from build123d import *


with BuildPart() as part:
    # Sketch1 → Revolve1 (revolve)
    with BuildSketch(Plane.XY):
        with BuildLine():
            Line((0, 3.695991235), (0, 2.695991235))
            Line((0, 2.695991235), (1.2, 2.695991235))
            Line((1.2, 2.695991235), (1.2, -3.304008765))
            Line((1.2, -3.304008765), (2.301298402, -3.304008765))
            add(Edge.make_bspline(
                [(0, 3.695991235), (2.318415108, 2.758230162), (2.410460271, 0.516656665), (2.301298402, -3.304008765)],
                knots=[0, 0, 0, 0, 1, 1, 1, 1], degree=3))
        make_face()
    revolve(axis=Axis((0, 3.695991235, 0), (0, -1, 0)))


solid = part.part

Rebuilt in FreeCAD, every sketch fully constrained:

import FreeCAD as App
import Part
import Sketcher
Q = App.Units.Quantity

doc = App.newDocument("Part")
params = doc.addObject("Spreadsheet::Sheet", "Params")
for row, (alias, value) in enumerate([
    ("sketch1_height", "1 mm"),
    ("sketch1_width", "1.2 mm"),
    ("revolution_angle", "360 deg"),
], start=1):
    params.set(f"A{row}", alias)
    params.set(f"B{row}", "=" + value)
    params.setAlias(f"B{row}", alias)

body = doc.addObject("PartDesign::Body", "Body")

sketch1 = body.newObject("Sketcher::SketchObject", "Sketch")
sketch1.AttachmentSupport = (doc.getObject("XY_Plane"), [""])
sketch1.MapMode = "FlatFace"
sketch1.addGeometry([
    Part.LineSegment(App.Vector(0, 3.695991, 0), App.Vector(0, 2.695991, 0)),
    Part.LineSegment(App.Vector(0, 2.695991, 0), App.Vector(1.2, 2.695991, 0)),
    Part.LineSegment(App.Vector(1.2, 2.695991, 0), App.Vector(1.2, -3.304009, 0)),
    Part.LineSegment(App.Vector(1.2, -3.304009, 0), App.Vector(2.301298, -3.304009, 0)),
    Part.BSplineCurve([App.Vector(0, 3.695991, 0), App.Vector(2.318415, 2.75823, 0), App.Vector(2.41046, 0.516657, 0), App.Vector(2.301298, -3.304009, 0)], [4, 4], [0, 1], False, 3, [1, 1, 1, 1], False),
], False)
sketch1.addConstraint([
    Sketcher.Constraint("Block", 4),
    Sketcher.Constraint("Coincident", 0, 2, 1, 1),
    Sketcher.Constraint("Coincident", 1, 2, 2, 1),
    Sketcher.Constraint("Coincident", 2, 2, 3, 1),
    Sketcher.Constraint("Coincident", 3, 2, 4, 2),
    Sketcher.Constraint("Coincident", 4, 1, 0, 1),
    Sketcher.Constraint("Vertical", 0),
    Sketcher.Constraint("Horizontal", 1),
    Sketcher.Constraint("Vertical", 2),
    Sketcher.Constraint("Horizontal", 3),
    Sketcher.Constraint("DistanceY", 0, 2, 0, 1, Q("1 mm")),
    Sketcher.Constraint("DistanceX", 1, 1, 1, 2, Q("1.2 mm")),
])
sketch1.setExpression("Constraints[10]", "Params.sketch1_height")
sketch1.setExpression("Constraints[11]", "Params.sketch1_width")
revolution = body.newObject("PartDesign::Revolution", "Revolution")
revolution.Profile = sketch1
revolution.ReferenceAxis = (sketch1, ["V_Axis"])
revolution.setExpression("Angle", "Params.revolution_angle")

doc.recompute()
